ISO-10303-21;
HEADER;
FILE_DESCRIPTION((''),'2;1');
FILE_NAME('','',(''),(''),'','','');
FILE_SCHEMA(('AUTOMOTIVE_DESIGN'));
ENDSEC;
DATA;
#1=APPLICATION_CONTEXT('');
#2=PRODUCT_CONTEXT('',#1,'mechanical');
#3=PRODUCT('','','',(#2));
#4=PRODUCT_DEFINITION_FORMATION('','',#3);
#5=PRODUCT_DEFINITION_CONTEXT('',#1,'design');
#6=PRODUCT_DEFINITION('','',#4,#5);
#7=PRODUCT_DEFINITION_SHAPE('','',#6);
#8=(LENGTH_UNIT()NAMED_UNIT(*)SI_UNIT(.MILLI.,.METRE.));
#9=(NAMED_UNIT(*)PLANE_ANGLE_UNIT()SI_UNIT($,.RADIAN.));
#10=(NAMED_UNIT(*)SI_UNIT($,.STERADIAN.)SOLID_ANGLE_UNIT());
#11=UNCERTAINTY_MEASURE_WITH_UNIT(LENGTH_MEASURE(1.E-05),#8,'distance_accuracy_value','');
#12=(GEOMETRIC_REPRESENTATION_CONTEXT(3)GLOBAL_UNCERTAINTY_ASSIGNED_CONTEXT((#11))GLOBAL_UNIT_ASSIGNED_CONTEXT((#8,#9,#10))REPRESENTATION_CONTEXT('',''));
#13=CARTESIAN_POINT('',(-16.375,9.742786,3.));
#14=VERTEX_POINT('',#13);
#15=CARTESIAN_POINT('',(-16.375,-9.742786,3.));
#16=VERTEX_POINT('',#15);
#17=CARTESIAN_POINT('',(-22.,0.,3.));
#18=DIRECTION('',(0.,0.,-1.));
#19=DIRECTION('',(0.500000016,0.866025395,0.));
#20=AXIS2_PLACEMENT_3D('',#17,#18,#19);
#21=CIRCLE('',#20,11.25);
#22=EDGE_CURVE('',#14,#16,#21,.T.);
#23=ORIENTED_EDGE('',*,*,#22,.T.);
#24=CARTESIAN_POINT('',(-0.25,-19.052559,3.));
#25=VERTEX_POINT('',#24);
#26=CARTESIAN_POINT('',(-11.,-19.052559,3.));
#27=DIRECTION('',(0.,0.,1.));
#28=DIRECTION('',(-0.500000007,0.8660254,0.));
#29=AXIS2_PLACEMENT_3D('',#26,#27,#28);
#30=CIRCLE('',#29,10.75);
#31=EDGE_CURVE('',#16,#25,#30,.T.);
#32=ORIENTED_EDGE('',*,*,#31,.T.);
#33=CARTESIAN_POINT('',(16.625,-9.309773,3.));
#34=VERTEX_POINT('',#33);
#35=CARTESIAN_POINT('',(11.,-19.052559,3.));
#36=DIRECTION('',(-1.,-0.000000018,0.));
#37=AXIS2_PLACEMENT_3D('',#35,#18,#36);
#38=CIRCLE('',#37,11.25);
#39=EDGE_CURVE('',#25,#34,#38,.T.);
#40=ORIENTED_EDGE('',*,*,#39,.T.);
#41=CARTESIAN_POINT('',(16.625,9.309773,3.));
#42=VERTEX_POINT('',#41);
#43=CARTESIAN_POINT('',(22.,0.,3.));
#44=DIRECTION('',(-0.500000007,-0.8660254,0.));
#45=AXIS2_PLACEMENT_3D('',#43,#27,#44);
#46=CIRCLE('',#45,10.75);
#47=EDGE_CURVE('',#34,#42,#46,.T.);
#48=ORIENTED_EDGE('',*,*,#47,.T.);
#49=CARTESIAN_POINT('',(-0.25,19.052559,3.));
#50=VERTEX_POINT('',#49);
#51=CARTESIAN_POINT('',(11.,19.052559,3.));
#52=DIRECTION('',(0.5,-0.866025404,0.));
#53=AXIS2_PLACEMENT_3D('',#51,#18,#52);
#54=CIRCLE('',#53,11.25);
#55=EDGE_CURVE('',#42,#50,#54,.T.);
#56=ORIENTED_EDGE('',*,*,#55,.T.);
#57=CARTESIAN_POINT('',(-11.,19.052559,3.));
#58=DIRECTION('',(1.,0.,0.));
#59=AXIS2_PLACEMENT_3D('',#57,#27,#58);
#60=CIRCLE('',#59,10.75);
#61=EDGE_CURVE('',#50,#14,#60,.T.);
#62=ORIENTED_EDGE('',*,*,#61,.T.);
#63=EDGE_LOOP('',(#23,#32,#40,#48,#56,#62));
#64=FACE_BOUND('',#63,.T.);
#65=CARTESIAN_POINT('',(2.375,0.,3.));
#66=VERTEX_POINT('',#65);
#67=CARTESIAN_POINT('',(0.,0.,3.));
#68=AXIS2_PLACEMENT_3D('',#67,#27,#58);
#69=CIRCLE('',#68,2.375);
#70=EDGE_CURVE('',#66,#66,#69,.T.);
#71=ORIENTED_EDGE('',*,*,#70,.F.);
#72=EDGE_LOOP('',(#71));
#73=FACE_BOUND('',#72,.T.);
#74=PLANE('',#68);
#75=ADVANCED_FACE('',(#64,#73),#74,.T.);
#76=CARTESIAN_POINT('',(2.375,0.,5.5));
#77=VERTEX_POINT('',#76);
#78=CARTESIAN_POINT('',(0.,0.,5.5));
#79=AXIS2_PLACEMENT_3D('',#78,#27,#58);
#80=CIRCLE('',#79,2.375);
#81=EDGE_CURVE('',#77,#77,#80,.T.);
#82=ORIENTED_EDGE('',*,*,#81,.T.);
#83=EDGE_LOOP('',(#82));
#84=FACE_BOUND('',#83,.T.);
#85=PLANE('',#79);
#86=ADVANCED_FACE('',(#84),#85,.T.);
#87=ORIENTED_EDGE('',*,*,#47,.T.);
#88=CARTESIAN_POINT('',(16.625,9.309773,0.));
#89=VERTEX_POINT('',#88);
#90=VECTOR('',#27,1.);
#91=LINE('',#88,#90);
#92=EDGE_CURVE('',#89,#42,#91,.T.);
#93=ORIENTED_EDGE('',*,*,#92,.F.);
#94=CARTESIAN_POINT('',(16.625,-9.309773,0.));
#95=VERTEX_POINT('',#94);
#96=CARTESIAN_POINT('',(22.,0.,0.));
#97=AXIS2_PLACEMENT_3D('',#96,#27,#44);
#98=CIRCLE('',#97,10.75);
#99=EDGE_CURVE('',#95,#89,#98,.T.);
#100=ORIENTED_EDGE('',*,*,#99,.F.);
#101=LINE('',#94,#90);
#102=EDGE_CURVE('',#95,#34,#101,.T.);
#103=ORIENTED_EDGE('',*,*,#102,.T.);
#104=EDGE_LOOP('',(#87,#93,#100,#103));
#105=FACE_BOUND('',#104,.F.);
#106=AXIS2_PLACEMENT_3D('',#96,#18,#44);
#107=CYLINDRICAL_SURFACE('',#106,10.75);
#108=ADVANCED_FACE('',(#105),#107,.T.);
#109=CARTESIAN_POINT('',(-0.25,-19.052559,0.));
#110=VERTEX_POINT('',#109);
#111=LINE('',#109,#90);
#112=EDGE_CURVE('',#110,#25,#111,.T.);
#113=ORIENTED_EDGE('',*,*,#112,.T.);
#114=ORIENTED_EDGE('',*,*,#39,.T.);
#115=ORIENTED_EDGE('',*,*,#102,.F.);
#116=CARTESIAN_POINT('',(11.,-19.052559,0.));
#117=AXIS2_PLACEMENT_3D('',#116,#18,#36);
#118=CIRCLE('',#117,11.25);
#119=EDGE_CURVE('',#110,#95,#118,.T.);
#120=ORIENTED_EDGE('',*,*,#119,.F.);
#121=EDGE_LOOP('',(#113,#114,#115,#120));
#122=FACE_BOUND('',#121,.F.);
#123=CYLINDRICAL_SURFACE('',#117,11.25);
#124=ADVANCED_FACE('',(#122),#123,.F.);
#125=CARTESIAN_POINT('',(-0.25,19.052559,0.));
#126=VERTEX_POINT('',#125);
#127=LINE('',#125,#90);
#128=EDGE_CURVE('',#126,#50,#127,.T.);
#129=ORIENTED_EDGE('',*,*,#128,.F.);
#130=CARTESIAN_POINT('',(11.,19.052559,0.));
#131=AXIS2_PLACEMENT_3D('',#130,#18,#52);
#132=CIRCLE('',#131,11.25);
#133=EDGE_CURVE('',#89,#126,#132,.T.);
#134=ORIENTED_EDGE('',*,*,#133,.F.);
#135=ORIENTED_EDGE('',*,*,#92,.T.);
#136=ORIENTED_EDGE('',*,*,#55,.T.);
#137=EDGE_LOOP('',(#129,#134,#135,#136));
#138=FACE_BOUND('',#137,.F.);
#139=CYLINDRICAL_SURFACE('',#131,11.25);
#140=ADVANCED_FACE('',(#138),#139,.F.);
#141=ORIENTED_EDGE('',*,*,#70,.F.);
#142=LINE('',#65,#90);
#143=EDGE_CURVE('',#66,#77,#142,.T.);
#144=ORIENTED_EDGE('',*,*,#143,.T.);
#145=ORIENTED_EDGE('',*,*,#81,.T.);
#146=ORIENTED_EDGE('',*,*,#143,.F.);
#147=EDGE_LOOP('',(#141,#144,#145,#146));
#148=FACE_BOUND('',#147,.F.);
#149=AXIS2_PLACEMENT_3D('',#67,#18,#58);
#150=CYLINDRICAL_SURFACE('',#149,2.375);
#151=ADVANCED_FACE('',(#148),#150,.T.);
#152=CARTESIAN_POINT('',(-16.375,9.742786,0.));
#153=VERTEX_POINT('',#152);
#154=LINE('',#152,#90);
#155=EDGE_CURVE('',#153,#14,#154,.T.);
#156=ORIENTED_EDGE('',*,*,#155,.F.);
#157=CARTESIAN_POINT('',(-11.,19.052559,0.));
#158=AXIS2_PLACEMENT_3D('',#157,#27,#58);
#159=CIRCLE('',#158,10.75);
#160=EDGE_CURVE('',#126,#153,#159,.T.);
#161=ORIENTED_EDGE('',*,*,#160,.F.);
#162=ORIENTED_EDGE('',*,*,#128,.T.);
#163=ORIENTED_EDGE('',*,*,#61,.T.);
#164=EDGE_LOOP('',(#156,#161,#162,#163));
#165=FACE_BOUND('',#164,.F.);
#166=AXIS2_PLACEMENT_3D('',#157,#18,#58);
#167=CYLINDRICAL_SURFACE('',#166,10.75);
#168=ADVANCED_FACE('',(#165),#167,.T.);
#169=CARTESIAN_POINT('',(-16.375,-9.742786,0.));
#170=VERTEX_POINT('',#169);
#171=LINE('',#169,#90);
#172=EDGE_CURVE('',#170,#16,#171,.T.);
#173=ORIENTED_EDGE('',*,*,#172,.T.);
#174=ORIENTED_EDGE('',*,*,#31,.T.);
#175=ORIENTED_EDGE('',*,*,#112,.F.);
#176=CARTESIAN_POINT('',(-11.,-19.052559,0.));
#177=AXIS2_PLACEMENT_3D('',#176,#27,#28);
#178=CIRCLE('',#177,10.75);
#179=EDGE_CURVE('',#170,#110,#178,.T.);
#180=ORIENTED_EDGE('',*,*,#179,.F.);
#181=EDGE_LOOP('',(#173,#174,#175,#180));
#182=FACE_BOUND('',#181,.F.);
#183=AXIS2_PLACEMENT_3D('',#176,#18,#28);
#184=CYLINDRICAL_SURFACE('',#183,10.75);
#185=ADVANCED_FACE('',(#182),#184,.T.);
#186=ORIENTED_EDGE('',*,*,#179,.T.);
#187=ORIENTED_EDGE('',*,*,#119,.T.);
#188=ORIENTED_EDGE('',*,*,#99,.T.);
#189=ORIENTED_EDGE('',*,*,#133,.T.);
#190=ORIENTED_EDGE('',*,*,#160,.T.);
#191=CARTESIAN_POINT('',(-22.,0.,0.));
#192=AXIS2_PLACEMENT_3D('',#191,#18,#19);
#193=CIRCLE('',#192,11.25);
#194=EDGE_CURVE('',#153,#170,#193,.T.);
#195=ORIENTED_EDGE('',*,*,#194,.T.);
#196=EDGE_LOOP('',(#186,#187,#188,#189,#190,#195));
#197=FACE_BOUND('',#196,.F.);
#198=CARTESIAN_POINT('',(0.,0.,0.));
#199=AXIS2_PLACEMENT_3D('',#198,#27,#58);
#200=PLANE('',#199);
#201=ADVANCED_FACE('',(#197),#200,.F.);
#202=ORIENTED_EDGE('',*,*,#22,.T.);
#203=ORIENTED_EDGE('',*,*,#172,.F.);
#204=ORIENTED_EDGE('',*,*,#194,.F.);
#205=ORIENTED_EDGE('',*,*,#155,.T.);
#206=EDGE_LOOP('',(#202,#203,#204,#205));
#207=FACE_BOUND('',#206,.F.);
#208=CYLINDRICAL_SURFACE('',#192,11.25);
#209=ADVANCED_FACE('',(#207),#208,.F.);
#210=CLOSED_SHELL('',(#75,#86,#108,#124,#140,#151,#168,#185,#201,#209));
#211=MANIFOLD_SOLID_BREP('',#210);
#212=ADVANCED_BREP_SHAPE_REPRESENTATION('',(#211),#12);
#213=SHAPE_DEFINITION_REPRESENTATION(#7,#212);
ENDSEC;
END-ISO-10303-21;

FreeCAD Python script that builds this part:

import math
import FreeCAD as App
import Part
import Sketcher

doc = App.newDocument("Part")
body = doc.addObject("PartDesign::Body", "Body")

# Sketch on XY plane
sketch1 = body.newObject("Sketcher::SketchObject", "Sketch")
sketch1.AttachmentSupport = (doc.getObject("XY_Plane"), [""])
sketch1.MapMode = "FlatFace"
sketch1.addGeometry([
    Part.ArcOfCircle(Part.Circle(App.Vector(22, 0, 0), App.Vector(0, 0, 1), 11), math.radians(-120), math.radians(120)),  # 0
    Part.ArcOfCircle(Part.Circle(App.Vector(11, 19, 0), App.Vector(0, 0, 1), 11), math.radians(180), math.radians(300)),  # 1
    Part.ArcOfCircle(Part.Circle(App.Vector(-11, 19, 0), App.Vector(0, 0, 1), 11), math.radians(0), math.radians(240)),  # 2
    Part.ArcOfCircle(Part.Circle(App.Vector(-22, 0, 0), App.Vector(0, 0, 1), 11), math.radians(-60), math.radians(60)),  # 3
    Part.ArcOfCircle(Part.Circle(App.Vector(-11, -19, 0), App.Vector(0, 0, 1), 11), math.radians(120), math.radians(360)),  # 4
    Part.ArcOfCircle(Part.Circle(App.Vector(11, -19, 0), App.Vector(0, 0, 1), 11), math.radians(60), math.radians(180)),  # 5
], False)
sketch1.addConstraint([
    Sketcher.Constraint("Tangent", 0, 2, 1, 2),
    Sketcher.Constraint("Tangent", 1, 1, 2, 1),
    Sketcher.Constraint("Tangent", 2, 2, 3, 2),
    Sketcher.Constraint("Tangent", 3, 1, 4, 1),
    Sketcher.Constraint("Tangent", 4, 2, 5, 2),
    Sketcher.Constraint("Tangent", 5, 1, 0, 1),
    Sketcher.Constraint("Equal", 0, 2),
    Sketcher.Constraint("Equal", 1, 3),
    Sketcher.Constraint("Equal", 2, 4),
    Sketcher.Constraint("Equal", 3, 5),
    Sketcher.Constraint("Symmetric", 0, 3, 3, 3, -1, 1),
    Sketcher.Constraint("Symmetric", 1, 3, 2, 3, -2),
    Sketcher.Constraint("Horizontal", 4, 3, 5, 3),
    Sketcher.Constraint("Radius", 0, 10.75),
    Sketcher.Constraint("Radius", 1, 11.25),
    Sketcher.Constraint("DistanceX", -1, 1, 0, 3, 22.0),
])
pad1 = body.newObject("PartDesign::Pad", "Pad")
pad1.Profile = sketch1
pad1.Length = 3

# Sketch on XY plane
sketch2 = body.newObject("Sketcher::SketchObject", "Sketch001")
sketch2.AttachmentSupport = (doc.getObject("XY_Plane"), [""])
sketch2.MapMode = "FlatFace"
sketch2.AttachmentOffset = App.Placement(App.Vector(0, 0, 3), App.Rotation())
sketch2.addGeometry(Part.Circle(App.Vector(0, 0, 0), App.Vector(0, 0, 1), 2.4), False)
sketch2.addConstraint([
    Sketcher.Constraint("Coincident", 0, 3, -1, 1),
    Sketcher.Constraint("Diameter", 0, 4.75),
])
pad2 = body.newObject("PartDesign::Pad", "Pad001")
pad2.Profile = sketch2
pad2.Length = 2.5

doc.recompute()
